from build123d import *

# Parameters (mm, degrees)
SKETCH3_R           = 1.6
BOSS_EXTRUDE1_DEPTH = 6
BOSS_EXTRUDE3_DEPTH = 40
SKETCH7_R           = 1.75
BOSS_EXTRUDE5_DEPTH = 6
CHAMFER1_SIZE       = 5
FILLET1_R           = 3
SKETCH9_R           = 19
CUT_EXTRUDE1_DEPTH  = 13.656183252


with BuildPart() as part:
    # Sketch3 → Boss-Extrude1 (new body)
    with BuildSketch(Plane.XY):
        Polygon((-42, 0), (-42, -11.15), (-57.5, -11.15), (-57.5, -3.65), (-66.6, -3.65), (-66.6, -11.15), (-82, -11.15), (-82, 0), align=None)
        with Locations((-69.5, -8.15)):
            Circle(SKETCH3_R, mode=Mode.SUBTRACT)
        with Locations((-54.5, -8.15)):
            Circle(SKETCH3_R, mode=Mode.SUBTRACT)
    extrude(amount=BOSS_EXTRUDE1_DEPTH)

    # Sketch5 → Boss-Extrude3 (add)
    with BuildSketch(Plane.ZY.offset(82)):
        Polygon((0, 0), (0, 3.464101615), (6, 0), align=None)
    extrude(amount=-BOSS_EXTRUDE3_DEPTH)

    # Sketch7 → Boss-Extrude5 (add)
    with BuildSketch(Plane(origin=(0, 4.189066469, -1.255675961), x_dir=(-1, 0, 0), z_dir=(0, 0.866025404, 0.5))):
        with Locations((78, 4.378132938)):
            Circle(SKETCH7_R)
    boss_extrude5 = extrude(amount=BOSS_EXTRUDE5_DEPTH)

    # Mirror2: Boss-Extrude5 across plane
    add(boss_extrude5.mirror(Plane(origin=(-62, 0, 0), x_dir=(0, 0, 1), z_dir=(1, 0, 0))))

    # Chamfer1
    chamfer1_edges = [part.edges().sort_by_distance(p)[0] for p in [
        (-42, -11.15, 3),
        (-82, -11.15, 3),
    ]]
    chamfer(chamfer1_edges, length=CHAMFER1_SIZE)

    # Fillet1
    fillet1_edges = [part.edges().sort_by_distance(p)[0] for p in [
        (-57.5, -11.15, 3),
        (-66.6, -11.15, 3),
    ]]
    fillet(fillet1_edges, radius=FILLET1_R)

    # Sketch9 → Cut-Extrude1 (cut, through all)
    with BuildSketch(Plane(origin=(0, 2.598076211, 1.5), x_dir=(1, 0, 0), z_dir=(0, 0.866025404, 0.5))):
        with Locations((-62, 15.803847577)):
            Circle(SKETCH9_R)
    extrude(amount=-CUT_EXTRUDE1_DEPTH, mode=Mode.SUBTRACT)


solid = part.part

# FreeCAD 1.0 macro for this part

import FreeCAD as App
import Part
import Sketcher
from FreeCAD import Vector
Q = App.Units.Quantity


def edges_at(feature, points):
    """Names of the edges that pass closest to the given points."""
    edges = feature.Shape.Edges
    near = lambda p: min(range(len(edges)), key=lambda i: edges[i].distToShape(Part.Vertex(*p))[0])
    return sorted({f"Edge{near(p) + 1}" for p in points})

doc = App.newDocument("Part")
body = doc.addObject("PartDesign::Body", "Body")

# Sketch on XY plane
sketch1 = body.newObject("Sketcher::SketchObject", "Sketch")
sketch1.AttachmentSupport = (doc.getObject("XY_Plane"), [""])
sketch1.MapMode = "FlatFace"
sketch1.addGeometry([
    Part.LineSegment(Vector(-42, -11.2, 0), Vector(-42, 0, 0)),  # 0
    Part.LineSegment(Vector(-42, 0, 0), Vector(-82, 0, 0)),  # 1
    Part.LineSegment(Vector(-82, 0, 0), Vector(-82, -11.2, 0)),  # 2
    Part.LineSegment(Vector(-82, -11.2, 0), Vector(-66.6, -11.2, 0)),  # 3
    Part.LineSegment(Vector(-66.6, -11.2, 0), Vector(-66.6, -3.6, 0)),  # 4
    Part.LineSegment(Vector(-66.6, -3.6, 0), Vector(-57.5, -3.6, 0)),  # 5
    Part.LineSegment(Vector(-57.5, -3.6, 0), Vector(-57.5, -11.2, 0)),  # 6
    Part.LineSegment(Vector(-57.5, -11.2, 0), Vector(-42, -11.2, 0)),  # 7
    Part.Circle(Vector(-54.5, -8.2, 0), Vector(0, 0, 1), 1.6),  # 8
    Part.Circle(Vector(-69.5, -8.2, 0), Vector(0, 0, 1), 1.6),  # 9
], False)
sketch1.addConstraint([
    Sketcher.Constraint("Coincident", 0, 2, 1, 1),
    Sketcher.Constraint("Coincident", 1, 2, 2, 1),
    Sketcher.Constraint("Coincident", 2, 2, 3, 1),
    Sketcher.Constraint("Coincident", 3, 2, 4, 1),
    Sketcher.Constraint("Coincident", 4, 2, 5, 1),
    Sketcher.Constraint("Coincident", 5, 2, 6, 1),
    Sketcher.Constraint("Coincident", 6, 2, 7, 1),
    Sketcher.Constraint("Coincident", 7, 2, 0, 1),
    Sketcher.Constraint("Vertical", 0),
    Sketcher.Constraint("Horizontal", 1),
    Sketcher.Constraint("Vertical", 2),
    Sketcher.Constraint("Horizontal", 3),
    Sketcher.Constraint("Vertical", 4),
    Sketcher.Constraint("Horizontal", 5),
    Sketcher.Constraint("Vertical", 6),
    Sketcher.Constraint("Horizontal", 7),
    Sketcher.Constraint("Equal", 8, 9),
    Sketcher.Constraint("PointOnObject", 0, 2, -1),
    Sketcher.Constraint("Horizontal", 8, 3, 9, 3),
    Sketcher.Constraint("Horizontal", 3, 2, 6, 2),
    Sketcher.Constraint("Diameter", 8, 3.2),
    Sketcher.Constraint("DistanceX", 1, 2, 1, 1, 40.0),
    Sketcher.Constraint("DistanceX", 3, 1, 3, 2, 15.4),
    Sketcher.Constraint("DistanceX", 5, 1, 5, 2, 9.1),
    Sketcher.Constraint("DistanceY", 4, 1, 4, 2, 7.5),
    Sketcher.Constraint("DistanceX", 0, 2, -1, 1, 42.0),
    Sketcher.Constraint("DistanceX", 9, 3, 8, 3, 15.0),
    Sketcher.Constraint("DistanceY", 2, 2, 9, 3, 3.0),
    Sketcher.Constraint("DistanceX", 5, 2, 8, 3, 3.0),
    Sketcher.Constraint("DistanceY", 0, 1, 0, 2, 11.15),
])
pad1 = body.newObject("PartDesign::Pad", "Pad")
pad1.Profile = sketch1
pad1.Length = 6

# Sketch on YZ plane
sketch2 = body.newObject("Sketcher::SketchObject", "Sketch001")
sketch2.AttachmentSupport = (doc.getObject("YZ_Plane"), [""])
sketch2.MapMode = "FlatFace"
sketch2.AttachmentOffset = App.Placement(Vector(0, 0, -82), App.Rotation())
sketch2.addGeometry([
    Part.LineSegment(Vector(3.5, 0, 0), Vector(0, 0, 0)),
    Part.LineSegment(Vector(0, 0, 0), Vector(0, 6, 0)),
    Part.LineSegment(Vector(0, 6, 0), Vector(3.5, 0, 0)),
], False)
sketch2.addConstraint([
    Sketcher.Constraint("Coincident", 0, 2, 1, 1),
    Sketcher.Constraint("Coincident", 1, 2, 2, 1),
    Sketcher.Constraint("Coincident", 2, 2, 0, 1),
    Sketcher.Constraint("Horizontal", 0),
    Sketcher.Constraint("Vertical", 1),
    Sketcher.Constraint("Coincident", 0, 2, -1, 1),
    Sketcher.Constraint("DistanceY", 1, 1, 1, 2, 6.0),
    Sketcher.Constraint("Angle", 2, Q("-60 deg")),
])
pad2 = body.newObject("PartDesign::Pad", "Pad001")
pad2.Profile = sketch2
pad2.Length = 40

# Sketch on an angled plane
sketch3 = body.newObject("Sketcher::SketchObject", "Sketch002")
sketch3.Placement = App.Placement(Vector(0, 4.189066, -1.255676), App.Rotation(Vector(-1, 0, 0), Vector(0, -0.5, 0.866025404), Vector(0, 0.866025404, 0.5), "ZXY"))
sketch3.addGeometry(Part.Circle(Vector(78, 4.4, 0), Vector(0, 0, 1), 1.8), False)
sketch3.addConstraint([
    Sketcher.Constraint("Diameter", 0, 3.5),
    Sketcher.Constraint("DistanceX", -1, 1, 0, 3, 78.0),
    Sketcher.Constraint("DistanceY", -1, 1, 0, 3, 4.378133),
])
pad3 = body.newObject("PartDesign::Pad", "Pad002")
pad3.Profile = sketch3
pad3.Length = 6
doc.recompute()

datumplane = body.newObject("PartDesign::Plane", "DatumPlane")
datumplane.AttachmentSupport = (doc.getObject("YZ_Plane"), [""])
datumplane.MapMode = "FlatFace"
datumplane.AttachmentOffset = App.Placement(Vector(0, 0, -62), App.Rotation())
mirrored = body.newObject("PartDesign::Mirrored", "Mirrored")
mirrored.Originals = [pad3]
mirrored.MirrorPlane = (datumplane, [""])
body.Tip = mirrored
doc.recompute()

chamfer = body.newObject("PartDesign::Chamfer", "Chamfer")
chamfer.Base = (mirrored, edges_at(mirrored, [(-42, -11.15, 3), (-82, -11.15, 3)]))
chamfer.Size = 5
doc.recompute()

fillet = body.newObject("PartDesign::Fillet", "Fillet")
fillet.Base = (chamfer, edges_at(chamfer, [(-57.5, -11.15, 3), (-66.6, -11.15, 3)]))
fillet.Radius = 3

# Sketch on an angled plane
sketch4 = body.newObject("Sketcher::SketchObject", "Sketch003")
sketch4.Placement = App.Placement(Vector(0, 2.598076, 1.5), App.Rotation(Vector(1, 0, 0), Vector(0, 0.5, -0.866025404), Vector(0, 0.866025404, 0.5), "ZXY"))
sketch4.addGeometry(Part.Circle(Vector(-62, 16, 0), Vector(0, 0, 1), 19), False)
sketch4.addConstraint([
    Sketcher.Constraint("Diameter", 0, 38.0),
    Sketcher.Constraint("DistanceX", 0, 3, -1, 1, 62.0),
    Sketcher.Constraint("DistanceY", -1, 1, 0, 3, 15.803848),
])
pocket1 = body.newObject("PartDesign::Pocket", "Pocket")
pocket1.Profile = sketch4
pocket1.Type = "ThroughAll"

doc.recompute()
